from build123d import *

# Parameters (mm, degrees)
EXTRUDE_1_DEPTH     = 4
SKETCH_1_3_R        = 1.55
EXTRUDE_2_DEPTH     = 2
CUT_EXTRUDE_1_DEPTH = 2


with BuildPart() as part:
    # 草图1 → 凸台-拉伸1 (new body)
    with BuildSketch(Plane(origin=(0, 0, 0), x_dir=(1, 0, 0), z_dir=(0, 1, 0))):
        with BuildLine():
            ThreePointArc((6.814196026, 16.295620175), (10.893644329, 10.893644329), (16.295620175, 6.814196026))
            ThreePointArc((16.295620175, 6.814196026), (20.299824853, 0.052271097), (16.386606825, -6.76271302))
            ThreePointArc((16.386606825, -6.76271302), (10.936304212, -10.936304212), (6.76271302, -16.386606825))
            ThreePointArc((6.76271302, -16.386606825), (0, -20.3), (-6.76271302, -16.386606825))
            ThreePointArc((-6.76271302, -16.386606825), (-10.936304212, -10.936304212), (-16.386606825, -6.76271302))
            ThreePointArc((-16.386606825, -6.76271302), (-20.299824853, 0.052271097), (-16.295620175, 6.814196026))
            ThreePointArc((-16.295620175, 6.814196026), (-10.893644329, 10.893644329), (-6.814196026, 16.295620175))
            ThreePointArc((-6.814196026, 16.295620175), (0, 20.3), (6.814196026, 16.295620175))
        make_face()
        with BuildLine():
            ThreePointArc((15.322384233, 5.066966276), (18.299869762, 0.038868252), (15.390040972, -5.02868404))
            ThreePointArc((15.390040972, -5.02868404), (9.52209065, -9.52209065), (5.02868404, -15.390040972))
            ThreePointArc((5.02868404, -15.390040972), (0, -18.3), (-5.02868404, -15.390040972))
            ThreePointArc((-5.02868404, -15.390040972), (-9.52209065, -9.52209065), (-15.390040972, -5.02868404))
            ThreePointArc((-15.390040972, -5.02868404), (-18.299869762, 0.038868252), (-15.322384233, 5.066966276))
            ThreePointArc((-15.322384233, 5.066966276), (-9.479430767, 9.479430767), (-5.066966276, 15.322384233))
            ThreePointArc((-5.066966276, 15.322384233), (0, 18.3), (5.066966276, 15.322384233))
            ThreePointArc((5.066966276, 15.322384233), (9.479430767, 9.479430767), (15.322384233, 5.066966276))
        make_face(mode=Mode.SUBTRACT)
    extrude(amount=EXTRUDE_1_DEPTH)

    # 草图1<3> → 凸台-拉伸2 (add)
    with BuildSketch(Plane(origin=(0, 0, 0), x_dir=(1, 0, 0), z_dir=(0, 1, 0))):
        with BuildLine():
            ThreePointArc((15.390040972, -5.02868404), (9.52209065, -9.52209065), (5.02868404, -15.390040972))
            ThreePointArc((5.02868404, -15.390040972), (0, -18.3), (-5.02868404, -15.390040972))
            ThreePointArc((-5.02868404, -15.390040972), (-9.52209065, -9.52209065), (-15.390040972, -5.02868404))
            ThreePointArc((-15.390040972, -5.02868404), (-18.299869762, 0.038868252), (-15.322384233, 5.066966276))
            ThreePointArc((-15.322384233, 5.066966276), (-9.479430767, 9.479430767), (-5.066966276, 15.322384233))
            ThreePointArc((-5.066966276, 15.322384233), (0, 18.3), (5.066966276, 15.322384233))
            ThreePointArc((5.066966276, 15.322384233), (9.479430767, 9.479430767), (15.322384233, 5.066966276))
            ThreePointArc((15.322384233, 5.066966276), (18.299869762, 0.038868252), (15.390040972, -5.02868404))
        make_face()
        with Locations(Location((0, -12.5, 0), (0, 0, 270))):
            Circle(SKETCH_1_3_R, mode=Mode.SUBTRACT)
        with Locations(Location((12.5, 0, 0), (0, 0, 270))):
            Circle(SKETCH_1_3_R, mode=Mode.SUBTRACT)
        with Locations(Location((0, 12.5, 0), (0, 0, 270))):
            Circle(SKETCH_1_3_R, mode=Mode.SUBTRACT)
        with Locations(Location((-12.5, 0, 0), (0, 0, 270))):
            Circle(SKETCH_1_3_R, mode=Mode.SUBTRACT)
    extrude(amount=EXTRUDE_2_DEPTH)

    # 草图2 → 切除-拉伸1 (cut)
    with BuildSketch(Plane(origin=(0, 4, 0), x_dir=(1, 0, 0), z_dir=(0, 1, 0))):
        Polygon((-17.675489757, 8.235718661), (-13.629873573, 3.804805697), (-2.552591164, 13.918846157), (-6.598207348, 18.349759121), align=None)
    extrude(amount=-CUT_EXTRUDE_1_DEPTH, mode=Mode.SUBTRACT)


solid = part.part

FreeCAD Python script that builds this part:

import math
import FreeCAD as App
import Part
import Sketcher
Q = App.Units.Quantity


def add_polygon(sketch, points):
    """Adds a closed chain of lines whose ends are joined by coincident constraints."""
    first, n = sketch.GeometryCount, len(points)
    for a, b in zip(points, points[1:] + points[:1]):
        sketch.addGeometry(Part.LineSegment(App.Vector(*a, 0), App.Vector(*b, 0)), False)
    for i in range(n):
        sketch.addConstraint(Sketcher.Constraint("Coincident", first + i, 2, first + (i + 1) % n, 1))

doc = App.newDocument("Part")
body = doc.addObject("PartDesign::Body", "Body")

# Sketch on XZ plane
sketch1 = doc.addObject("Sketcher::SketchObject", "Sketch")
body.addObject(sketch1)
sketch1.AttachmentSupport = (doc.XZ_Plane, [""])
sketch1.MapMode = "FlatFace"
sketch1.addGeometry([
    Part.ArcOfCircle(Part.Circle(App.Vector(28.21776, -28.21776, 0), App.Vector(0, 0, 1), 24.5), math.radians(119.118532), math.radians(150.881468)),  # 0
    Part.ArcOfCircle(Part.Circle(App.Vector(0, -12.5, 0), App.Vector(0, 0, 1), 7.8), math.radians(-150.881468), math.radians(-29.118532)),  # 1
    Part.ArcOfCircle(Part.Circle(App.Vector(-28.21776, -28.21776, 0), App.Vector(0, 0, 1), 24.5), math.radians(29.118532), math.radians(60.881468)),  # 2
    Part.ArcOfCircle(Part.Circle(App.Vector(-12.5, 0, 0), App.Vector(0, 0, 1), 7.8), math.radians(119.886464), math.radians(240.881468)),  # 3
    Part.ArcOfCircle(Part.Circle(App.Vector(-29.391791, 29.391791, 0), App.Vector(0, 0, 1), 26.1), math.radians(-60.113536), math.radians(-29.886464)),  # 4
    Part.ArcOfCircle(Part.Circle(App.Vector(0, 12.5, 0), App.Vector(0, 0, 1), 7.8), math.radians(29.886464), math.radians(150.113536)),  # 5
    Part.ArcOfCircle(Part.Circle(App.Vector(29.391791, 29.391791, 0), App.Vector(0, 0, 1), 26.1), math.radians(-150.113536), math.radians(-119.886464)),  # 6
    Part.ArcOfCircle(Part.Circle(App.Vector(12.5, 0, 0), App.Vector(0, 0, 1), 7.8), math.radians(-60.881468), math.radians(60.113536)),  # 7
    Part.ArcOfCircle(Part.Circle(App.Vector(12.5, 0, 0), App.Vector(0, 0, 1), 5.8), math.radians(-60.881468), math.radians(60.113536)),  # 8
    Part.ArcOfCircle(Part.Circle(App.Vector(29.391791, 29.391791, 0), App.Vector(0, 0, 1), 28.1), math.radians(-150.113536), math.radians(-119.886464)),  # 9
    Part.ArcOfCircle(Part.Circle(App.Vector(0, 12.5, 0), App.Vector(0, 0, 1), 5.8), math.radians(29.886464), math.radians(150.113536)),  # 10
    Part.ArcOfCircle(Part.Circle(App.Vector(-29.391791, 29.391791, 0), App.Vector(0, 0, 1), 28.1), math.radians(-60.113536), math.radians(-29.886464)),  # 11
    Part.ArcOfCircle(Part.Circle(App.Vector(-12.5, 0, 0), App.Vector(0, 0, 1), 5.8), math.radians(119.886464), math.radians(240.881468)),  # 12
    Part.ArcOfCircle(Part.Circle(App.Vector(-28.21776, -28.21776, 0), App.Vector(0, 0, 1), 26.5), math.radians(29.118532), math.radians(60.881468)),  # 13
    Part.ArcOfCircle(Part.Circle(App.Vector(0, -12.5, 0), App.Vector(0, 0, 1), 5.8), math.radians(-150.881468), math.radians(-29.118532)),  # 14
    Part.ArcOfCircle(Part.Circle(App.Vector(28.21776, -28.21776, 0), App.Vector(0, 0, 1), 26.5), math.radians(119.118532), math.radians(150.881468)),  # 15
], False)
sketch1.addConstraint([
    Sketcher.Constraint("Tangent", 0, 2, 1, 2),
    Sketcher.Constraint("Tangent", 1, 1, 2, 1),
    Sketcher.Constraint("Tangent", 2, 2, 3, 2),
    Sketcher.Constraint("Tangent", 3, 1, 4, 1),
    Sketcher.Constraint("Tangent", 4, 2, 5, 2),
    Sketcher.Constraint("Tangent", 5, 1, 6, 1),
    Sketcher.Constraint("Tangent", 6, 2, 7, 2),
    Sketcher.Constraint("Tangent", 7, 1, 0, 1),
    Sketcher.Constraint("Tangent", 8, 2, 9, 2),
    Sketcher.Constraint("Tangent", 9, 1, 10, 1),
    Sketcher.Constraint("Tangent", 10, 2, 11, 2),
    Sketcher.Constraint("Tangent", 11, 1, 12, 1),
    Sketcher.Constraint("Tangent", 12, 2, 13, 2),
    Sketcher.Constraint("Tangent", 13, 1, 14, 1),
    Sketcher.Constraint("Tangent", 14, 2, 15, 2),
    Sketcher.Constraint("Tangent", 15, 1, 8, 1),
    Sketcher.Constraint("Coincident", 8, 3, 7, 3),
    Sketcher.Constraint("Coincident", 9, 3, 6, 3),
    Sketcher.Constraint("Coincident", 10, 3, 5, 3),
    Sketcher.Constraint("Coincident", 11, 3, 4, 3),
    Sketcher.Constraint("Coincident", 12, 3, 3, 3),
    Sketcher.Constraint("Coincident", 13, 3, 2, 3),
    Sketcher.Constraint("Coincident", 14, 3, 1, 3),
    Sketcher.Constraint("Equal", 0, 2),
    Sketcher.Constraint("Equal", 1, 3),
    Sketcher.Constraint("Equal", 3, 5),
    Sketcher.Constraint("Equal", 4, 6),
    Sketcher.Constraint("Equal", 5, 7),
    Sketcher.Constraint("Equal", 13, 15),
    Sketcher.Constraint("Symmetric", 1, 3, 5, 3, -1, 1),
    Sketcher.Constraint("Symmetric", 3, 3, 7, 3, -1, 1),
    Sketcher.Constraint("Symmetric", 0, 3, 2, 3, -2),
    Sketcher.Constraint("Radius", 0, Q("24.5 mm")),
    Sketcher.Constraint("Radius", 1, Q("7.8 mm")),
    Sketcher.Constraint("Radius", 4, Q("26.1 mm")),
    Sketcher.Constraint("Radius", 8, Q("5.8 mm")),
    Sketcher.Constraint("DistanceY", 1, 3, 5, 3, Q("25 mm")),
    Sketcher.Constraint("DistanceX", 3, 3, 7, 3, Q("25 mm")),
])
pad1 = doc.addObject("PartDesign::Pad", "Pad")
body.addObject(pad1)
pad1.Profile = sketch1
pad1.Length = 4
pad1.Reversed = True

# Sketch on XZ plane
sketch2 = doc.addObject("Sketcher::SketchObject", "Sketch001")
body.addObject(sketch2)
sketch2.AttachmentSupport = (doc.XZ_Plane, [""])
sketch2.MapMode = "FlatFace"
sketch2.addGeometry([
    Part.ArcOfCircle(Part.Circle(App.Vector(29.391791, 29.391791, 0), App.Vector(0, 0, 1), 28.1), math.radians(-150.113536), math.radians(-119.886464)),  # 0
    Part.ArcOfCircle(Part.Circle(App.Vector(12.5, 0, 0), App.Vector(0, 0, 1), 5.8), math.radians(-60.881468), math.radians(60.113536)),  # 1
    Part.ArcOfCircle(Part.Circle(App.Vector(28.21776, -28.21776, 0), App.Vector(0, 0, 1), 26.5), math.radians(119.118532), math.radians(150.881468)),  # 2
    Part.ArcOfCircle(Part.Circle(App.Vector(0, -12.5, 0), App.Vector(0, 0, 1), 5.8), math.radians(-150.881468), math.radians(-29.118532)),  # 3
    Part.ArcOfCircle(Part.Circle(App.Vector(-28.21776, -28.21776, 0), App.Vector(0, 0, 1), 26.5), math.radians(29.118532), math.radians(60.881468)),  # 4
    Part.ArcOfCircle(Part.Circle(App.Vector(-12.5, 0, 0), App.Vector(0, 0, 1), 5.8), math.radians(119.886464), math.radians(240.881468)),  # 5
    Part.ArcOfCircle(Part.Circle(App.Vector(-29.391791, 29.391791, 0), App.Vector(0, 0, 1), 28.1), math.radians(-60.113536), math.radians(-29.886464)),  # 6
    Part.ArcOfCircle(Part.Circle(App.Vector(0, 12.5, 0), App.Vector(0, 0, 1), 5.8), math.radians(29.886464), math.radians(150.113536)),  # 7
    Part.Circle(App.Vector(0, 12.5, 0), App.Vector(0, 0, 1), 1.55),  # 8
    Part.Circle(App.Vector(12.5, 0, 0), App.Vector(0, 0, 1), 1.55),  # 9
    Part.Circle(App.Vector(-12.5, 0, 0), App.Vector(0, 0, 1), 1.55),  # 10
    Part.Circle(App.Vector(0, -12.5, 0), App.Vector(0, 0, 1), 1.55),  # 11
], False)
sketch2.addConstraint([
    Sketcher.Constraint("Tangent", 0, 2, 1, 2),
    Sketcher.Constraint("Tangent", 1, 1, 2, 1),
    Sketcher.Constraint("Tangent", 2, 2, 3, 2),
    Sketcher.Constraint("Tangent", 3, 1, 4, 1),
    Sketcher.Constraint("Tangent", 4, 2, 5, 2),
    Sketcher.Constraint("Tangent", 5, 1, 6, 1),
    Sketcher.Constraint("Tangent", 6, 2, 7, 2),
    Sketcher.Constraint("Tangent", 7, 1, 0, 1),
    Sketcher.Constraint("Coincident", 8, 3, 7, 3),
    Sketcher.Constraint("Coincident", 9, 3, 1, 3),
    Sketcher.Constraint("Coincident", 10, 3, 5, 3),
    Sketcher.Constraint("Coincident", 11, 3, 3, 3),
    Sketcher.Constraint("Equal", 1, 3),
    Sketcher.Constraint("Equal", 2, 4),
    Sketcher.Constraint("Equal", 3, 5),
    Sketcher.Constraint("Equal", 0, 6),
    Sketcher.Constraint("Equal", 5, 7),
    Sketcher.Constraint("Equal", 8, 9),
    Sketcher.Constraint("Equal", 9, 10),
    Sketcher.Constraint("Equal", 10, 11),
    Sketcher.Constraint("Symmetric", 1, 3, 5, 3, -1, 1),
    Sketcher.Constraint("Symmetric", 3, 3, 7, 3, -1, 1),
    Sketcher.Constraint("Symmetric", 2, 3, 4, 3, -2),
    Sketcher.Constraint("Diameter", 8, Q("3.1 mm")),
    Sketcher.Constraint("Radius", 0, Q("28.1 mm")),
    Sketcher.Constraint("Radius", 1, Q("5.8 mm")),
    Sketcher.Constraint("Radius", 2, Q("26.5 mm")),
    Sketcher.Constraint("DistanceX", 5, 3, 1, 3, Q("25 mm")),
    Sketcher.Constraint("DistanceY", 3, 3, 7, 3, Q("25 mm")),
])
pad2 = doc.addObject("PartDesign::Pad", "Pad001")
body.addObject(pad2)
pad2.Profile = sketch2
pad2.Length = 2
pad2.Reversed = True

# Sketch on XZ plane
sketch3 = doc.addObject("Sketcher::SketchObject", "Sketch002")
body.addObject(sketch3)
sketch3.AttachmentSupport = (doc.XZ_Plane, [""])
sketch3.MapMode = "FlatFace"
sketch3.AttachmentOffset = App.Placement(App.Vector(0, 0, -4), App.Rotation())
add_polygon(sketch3, [(-17.67549, -8.235719), (-13.629874, -3.804806), (-2.552591, -13.918846), (-6.598207, -18.349759)])  # lines 0-3
sketch3.addConstraint([
    Sketcher.Constraint("Perpendicular", 0, 1),
    Sketcher.Constraint("Perpendicular", 1, 2),
    Sketcher.Constraint("Perpendicular", 2, 3),
    Sketcher.Constraint("Distance", 0, Q("6 mm")),
    Sketcher.Constraint("Distance", 1, Q("15 mm")),
    Sketcher.Constraint("DistanceX", 3, 2, 1, 2, Q("15.122899 mm")),
    Sketcher.Constraint("DistanceX", 1, 2, -1, 1, Q("2.552591 mm")),
    Sketcher.Constraint("DistanceY", 2, 2, -1, 1, Q("18.349759 mm")),
])
pocket1 = doc.addObject("PartDesign::Pocket", "Pocket")
body.addObject(pocket1)
pocket1.Profile = sketch3
pocket1.Length = 2
pocket1.Reversed = True

doc.recompute()
